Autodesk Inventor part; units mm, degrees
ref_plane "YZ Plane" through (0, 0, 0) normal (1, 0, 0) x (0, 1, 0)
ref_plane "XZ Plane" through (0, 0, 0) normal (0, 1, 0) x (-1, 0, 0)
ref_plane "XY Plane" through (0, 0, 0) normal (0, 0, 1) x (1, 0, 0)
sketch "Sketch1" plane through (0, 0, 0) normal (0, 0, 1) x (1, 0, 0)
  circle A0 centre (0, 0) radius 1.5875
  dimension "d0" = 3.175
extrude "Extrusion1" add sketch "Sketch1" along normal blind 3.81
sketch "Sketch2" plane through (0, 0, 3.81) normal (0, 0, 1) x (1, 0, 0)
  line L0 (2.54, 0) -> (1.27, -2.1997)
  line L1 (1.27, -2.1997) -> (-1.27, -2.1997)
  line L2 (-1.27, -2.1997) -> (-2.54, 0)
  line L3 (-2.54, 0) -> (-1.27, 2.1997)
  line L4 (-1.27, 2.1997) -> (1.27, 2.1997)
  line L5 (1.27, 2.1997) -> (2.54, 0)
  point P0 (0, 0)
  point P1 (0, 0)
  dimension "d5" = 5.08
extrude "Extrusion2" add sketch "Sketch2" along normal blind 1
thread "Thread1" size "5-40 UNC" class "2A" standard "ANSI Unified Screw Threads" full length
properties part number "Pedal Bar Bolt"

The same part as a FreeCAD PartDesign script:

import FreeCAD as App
import Part
import Sketcher
Q = App.Units.Quantity


def add_polygon(sketch, points):
    """Adds a closed chain of lines whose ends are joined by coincident constraints."""
    first, n = sketch.GeometryCount, len(points)
    for a, b in zip(points, points[1:] + points[:1]):
        sketch.addGeometry(Part.LineSegment(App.Vector(*a, 0), App.Vector(*b, 0)), False)
    for i in range(n):
        sketch.addConstraint(Sketcher.Constraint("Coincident", first + i, 2, first + (i + 1) % n, 1))

doc = App.newDocument("Part")
body = doc.addObject("PartDesign::Body", "Body")

# Sketch on XY plane
sketch1 = body.newObject("Sketcher::SketchObject", "Sketch")
sketch1.AttachmentSupport = (doc.getObject("XY_Plane"), [""])
sketch1.MapMode = "FlatFace"
sketch1.addGeometry(Part.Circle(App.Vector(0, 0, 0), App.Vector(0, 0, 1), 1.6), False)
sketch1.addConstraint(Sketcher.Constraint("Coincident", 0, 3, -1, 1))
sketch1.addConstraint(Sketcher.Constraint("Diameter", 0, Q("0.125 in")))
pad1 = body.newObject("PartDesign::Pad", "Pad")
pad1.Profile = sketch1
pad1.Length = Q("0.15 in")

# Sketch on XY plane
sketch2 = body.newObject("Sketcher::SketchObject", "Sketch001")
sketch2.AttachmentSupport = (doc.getObject("XY_Plane"), [""])
sketch2.MapMode = "FlatFace"
sketch2.AttachmentOffset = App.Placement(App.Vector(0, 0, 0.15 * 25.4), App.Rotation())
add_polygon(sketch2, [(1.3, -2.2), (2.5, 0), (1.3, 2.2), (-1.3, 2.2), (-2.5, 0), (-1.3, -2.2)])  # lines 0-5
sketch2.addConstraint(Sketcher.Constraint("Horizontal", 2))
sketch2.addConstraint(Sketcher.Constraint("Horizontal", 5))
sketch2.addConstraint(Sketcher.Constraint("Symmetric", 0, 2, 3, 2, -1, 1))
sketch2.addConstraint(Sketcher.Constraint("Symmetric", 1, 2, 4, 2, -1, 1))
sketch2.addConstraint(Sketcher.Constraint("PointOnObject", 0, 2, -1))
sketch2.addConstraint(Sketcher.Constraint("Parallel", 0, 3))
sketch2.addConstraint(Sketcher.Constraint("Vertical", 2, 2, 4, 2))
sketch2.addConstraint(Sketcher.Constraint("DistanceX", 3, 2, 0, 2, Q("0.2 in")))
sketch2.addConstraint(Sketcher.Constraint("DistanceX", 2, 2, 2, 1, Q("0.1 in")))
sketch2.addConstraint(Sketcher.Constraint("Angle", 0, Q("60 deg")))
pad2 = body.newObject("PartDesign::Pad", "Pad001")
pad2.Profile = sketch2
pad2.Length = 1

doc.recompute()
